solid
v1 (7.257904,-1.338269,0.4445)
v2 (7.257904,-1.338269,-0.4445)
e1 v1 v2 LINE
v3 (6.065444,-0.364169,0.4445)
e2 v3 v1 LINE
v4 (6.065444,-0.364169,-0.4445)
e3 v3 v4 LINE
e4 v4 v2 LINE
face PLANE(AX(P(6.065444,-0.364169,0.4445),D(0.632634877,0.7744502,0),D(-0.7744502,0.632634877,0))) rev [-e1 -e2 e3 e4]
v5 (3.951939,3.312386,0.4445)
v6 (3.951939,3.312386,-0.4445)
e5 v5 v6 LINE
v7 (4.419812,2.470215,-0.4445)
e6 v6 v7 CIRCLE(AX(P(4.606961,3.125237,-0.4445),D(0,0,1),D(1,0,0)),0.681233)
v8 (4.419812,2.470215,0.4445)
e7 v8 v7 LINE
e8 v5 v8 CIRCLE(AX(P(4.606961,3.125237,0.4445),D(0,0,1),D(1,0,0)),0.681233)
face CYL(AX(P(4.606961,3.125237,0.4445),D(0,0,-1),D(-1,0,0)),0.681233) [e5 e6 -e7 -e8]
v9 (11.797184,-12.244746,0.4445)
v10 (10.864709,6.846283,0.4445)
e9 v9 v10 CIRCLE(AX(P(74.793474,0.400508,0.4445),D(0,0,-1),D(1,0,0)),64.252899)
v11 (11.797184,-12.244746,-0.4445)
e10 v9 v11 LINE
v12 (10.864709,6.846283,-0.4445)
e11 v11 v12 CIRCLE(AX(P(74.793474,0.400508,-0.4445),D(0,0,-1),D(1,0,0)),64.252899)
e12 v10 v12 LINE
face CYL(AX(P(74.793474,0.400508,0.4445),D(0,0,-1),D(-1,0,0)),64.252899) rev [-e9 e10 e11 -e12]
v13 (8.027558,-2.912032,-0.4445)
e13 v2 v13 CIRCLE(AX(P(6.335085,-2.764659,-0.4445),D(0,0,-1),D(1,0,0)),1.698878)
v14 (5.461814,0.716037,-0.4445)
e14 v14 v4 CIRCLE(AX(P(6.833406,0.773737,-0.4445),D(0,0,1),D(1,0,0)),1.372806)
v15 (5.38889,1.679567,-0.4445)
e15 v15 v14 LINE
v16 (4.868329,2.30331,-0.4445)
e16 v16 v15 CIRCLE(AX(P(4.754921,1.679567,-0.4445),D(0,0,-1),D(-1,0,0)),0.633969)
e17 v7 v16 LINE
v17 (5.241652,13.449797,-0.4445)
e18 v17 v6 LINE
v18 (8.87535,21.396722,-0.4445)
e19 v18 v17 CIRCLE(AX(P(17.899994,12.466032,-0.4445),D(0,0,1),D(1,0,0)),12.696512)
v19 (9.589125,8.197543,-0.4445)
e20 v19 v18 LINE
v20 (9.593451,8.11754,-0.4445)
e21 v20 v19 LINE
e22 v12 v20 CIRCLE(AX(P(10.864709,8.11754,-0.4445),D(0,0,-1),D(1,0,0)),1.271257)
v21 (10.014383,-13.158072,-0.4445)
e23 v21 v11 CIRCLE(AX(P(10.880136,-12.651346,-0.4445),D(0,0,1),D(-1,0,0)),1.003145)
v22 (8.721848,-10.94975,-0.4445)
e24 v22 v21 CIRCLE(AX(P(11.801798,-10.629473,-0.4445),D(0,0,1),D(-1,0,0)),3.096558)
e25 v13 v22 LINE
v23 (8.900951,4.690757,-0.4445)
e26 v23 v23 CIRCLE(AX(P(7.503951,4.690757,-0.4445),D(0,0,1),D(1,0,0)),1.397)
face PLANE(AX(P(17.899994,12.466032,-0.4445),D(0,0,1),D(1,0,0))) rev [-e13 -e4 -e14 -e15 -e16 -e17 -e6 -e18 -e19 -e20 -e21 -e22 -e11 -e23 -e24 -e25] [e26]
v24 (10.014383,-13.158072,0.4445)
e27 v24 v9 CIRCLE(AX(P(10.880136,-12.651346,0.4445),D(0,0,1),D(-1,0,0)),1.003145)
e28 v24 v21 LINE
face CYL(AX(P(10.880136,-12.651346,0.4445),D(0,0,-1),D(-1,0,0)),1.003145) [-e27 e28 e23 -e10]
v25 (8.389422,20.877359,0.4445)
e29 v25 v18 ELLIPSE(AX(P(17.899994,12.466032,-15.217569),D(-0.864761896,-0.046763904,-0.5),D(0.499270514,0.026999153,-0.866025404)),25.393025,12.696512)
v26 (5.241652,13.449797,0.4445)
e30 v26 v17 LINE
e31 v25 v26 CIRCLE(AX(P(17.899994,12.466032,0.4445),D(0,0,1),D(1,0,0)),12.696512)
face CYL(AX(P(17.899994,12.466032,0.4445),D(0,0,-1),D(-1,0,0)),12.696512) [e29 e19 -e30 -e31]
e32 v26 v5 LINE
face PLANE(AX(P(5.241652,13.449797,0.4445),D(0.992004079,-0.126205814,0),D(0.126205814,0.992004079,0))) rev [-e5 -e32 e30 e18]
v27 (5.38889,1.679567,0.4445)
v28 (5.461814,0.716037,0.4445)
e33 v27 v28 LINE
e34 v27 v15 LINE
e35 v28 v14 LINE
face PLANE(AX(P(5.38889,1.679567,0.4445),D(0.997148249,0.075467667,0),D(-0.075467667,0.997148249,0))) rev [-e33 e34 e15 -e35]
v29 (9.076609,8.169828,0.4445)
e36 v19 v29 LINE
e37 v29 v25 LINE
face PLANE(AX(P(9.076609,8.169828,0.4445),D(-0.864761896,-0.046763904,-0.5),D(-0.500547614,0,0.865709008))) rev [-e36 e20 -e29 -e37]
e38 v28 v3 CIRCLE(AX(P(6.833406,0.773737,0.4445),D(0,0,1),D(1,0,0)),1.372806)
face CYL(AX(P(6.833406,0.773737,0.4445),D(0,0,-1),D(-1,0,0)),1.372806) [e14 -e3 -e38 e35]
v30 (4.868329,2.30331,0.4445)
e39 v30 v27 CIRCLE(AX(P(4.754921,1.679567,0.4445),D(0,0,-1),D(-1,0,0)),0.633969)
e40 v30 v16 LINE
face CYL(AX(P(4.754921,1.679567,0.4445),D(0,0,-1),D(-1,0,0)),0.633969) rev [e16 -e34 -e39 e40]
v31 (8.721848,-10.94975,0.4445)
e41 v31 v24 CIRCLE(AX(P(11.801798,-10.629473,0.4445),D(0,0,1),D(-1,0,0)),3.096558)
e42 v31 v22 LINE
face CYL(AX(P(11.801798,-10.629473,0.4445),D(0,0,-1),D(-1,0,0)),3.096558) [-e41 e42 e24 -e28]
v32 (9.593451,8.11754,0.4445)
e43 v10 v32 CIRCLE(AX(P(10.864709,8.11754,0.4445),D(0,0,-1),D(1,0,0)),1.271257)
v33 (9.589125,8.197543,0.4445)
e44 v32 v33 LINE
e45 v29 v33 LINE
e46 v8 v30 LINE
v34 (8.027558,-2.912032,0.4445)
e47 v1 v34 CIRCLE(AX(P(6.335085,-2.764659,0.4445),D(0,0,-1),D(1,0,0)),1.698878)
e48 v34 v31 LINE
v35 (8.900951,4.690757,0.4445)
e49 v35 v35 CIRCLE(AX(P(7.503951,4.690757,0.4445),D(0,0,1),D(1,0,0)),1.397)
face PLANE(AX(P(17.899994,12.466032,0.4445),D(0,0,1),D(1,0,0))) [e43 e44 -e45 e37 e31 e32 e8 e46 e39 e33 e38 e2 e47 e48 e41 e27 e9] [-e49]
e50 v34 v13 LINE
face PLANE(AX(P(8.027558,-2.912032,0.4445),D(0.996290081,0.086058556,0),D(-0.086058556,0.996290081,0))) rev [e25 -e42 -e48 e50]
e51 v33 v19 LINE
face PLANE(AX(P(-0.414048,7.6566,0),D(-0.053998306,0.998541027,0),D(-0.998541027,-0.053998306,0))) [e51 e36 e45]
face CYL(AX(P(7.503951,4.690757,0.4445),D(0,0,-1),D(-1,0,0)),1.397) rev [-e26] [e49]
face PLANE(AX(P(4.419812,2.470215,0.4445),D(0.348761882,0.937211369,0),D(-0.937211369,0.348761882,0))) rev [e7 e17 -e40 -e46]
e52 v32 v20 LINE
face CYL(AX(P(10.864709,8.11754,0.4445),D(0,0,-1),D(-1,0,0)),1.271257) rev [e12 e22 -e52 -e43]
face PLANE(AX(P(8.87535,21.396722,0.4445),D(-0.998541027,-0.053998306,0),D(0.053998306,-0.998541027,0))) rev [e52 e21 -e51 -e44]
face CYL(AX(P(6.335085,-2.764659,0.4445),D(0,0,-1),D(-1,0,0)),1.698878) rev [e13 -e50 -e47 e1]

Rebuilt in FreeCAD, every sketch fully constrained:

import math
import FreeCAD as App
import Part
import Sketcher
Q = App.Units.Quantity


def add_polygon(sketch, points):
    """Adds a closed chain of lines whose ends are joined by coincident constraints."""
    first, n = sketch.GeometryCount, len(points)
    for a, b in zip(points, points[1:] + points[:1]):
        sketch.addGeometry(Part.LineSegment(App.Vector(*a, 0), App.Vector(*b, 0)), False)
    for i in range(n):
        sketch.addConstraint(Sketcher.Constraint("Coincident", first + i, 2, first + (i + 1) % n, 1))

doc = App.newDocument("Part")
body = doc.addObject("PartDesign::Body", "Body")

# Sketch on XY plane
sketch1 = body.newObject("Sketcher::SketchObject", "Sketch")
sketch1.AttachmentSupport = (doc.getObject("XY_Plane"), [""])
sketch1.MapMode = "FlatFace"
sketch1.addGeometry(Part.LineSegment(App.Vector(9.59, 8.12, 0), App.Vector(8.88, 21.4, 0)), False)
sketch1.addGeometry(Part.ArcOfCircle(Part.Circle(App.Vector(17.9, 12.47, 0), App.Vector(0, 0, 1), 12.7), math.radians(135), math.radians(176)), False)
sketch1.addGeometry(Part.LineSegment(App.Vector(5.24, 13.45, 0), App.Vector(3.95, 3.31, 0)), False)
sketch1.addGeometry(Part.ArcOfCircle(Part.Circle(App.Vector(4.61, 3.13, 0), App.Vector(0, 0, 1), 0.68), math.radians(164), math.radians(254)), False)
sketch1.addGeometry(Part.LineSegment(App.Vector(4.42, 2.47, 0), App.Vector(4.87, 2.3, 0)), False)
sketch1.addGeometry(Part.ArcOfCircle(Part.Circle(App.Vector(4.75, 1.68, 0), App.Vector(0, 0, 1), 0.63), math.radians(0), math.radians(80)), False)
sketch1.addGeometry(Part.LineSegment(App.Vector(5.39, 1.68, 0), App.Vector(5.46, 0.72, 0)), False)
sketch1.addGeometry(Part.ArcOfCircle(Part.Circle(App.Vector(6.83, 0.77, 0), App.Vector(0, 0, 1), 1.37), math.radians(-178), math.radians(-124)), False)
sketch1.addGeometry(Part.LineSegment(App.Vector(6.07, -0.36, 0), App.Vector(7.26, -1.34, 0)), False)
sketch1.addGeometry(Part.ArcOfCircle(Part.Circle(App.Vector(6.34, -2.76, 0), App.Vector(0, 0, 1), 1.7), math.radians(-5), math.radians(57)), False)
sketch1.addGeometry(Part.LineSegment(App.Vector(8.03, -2.91, 0), App.Vector(8.72, -10.95, 0)), False)
sketch1.addGeometry(Part.ArcOfCircle(Part.Circle(App.Vector(11.8, -10.63, 0), App.Vector(0, 0, 1), 3.1), math.radians(-174), math.radians(-125)), False)
sketch1.addGeometry(Part.ArcOfCircle(Part.Circle(App.Vector(10.88, -12.65, 0), App.Vector(0, 0, 1), 1), math.radians(-150), math.radians(24)), False)
sketch1.addGeometry(Part.ArcOfCircle(Part.Circle(App.Vector(74.79, 0.4, 0), App.Vector(0, 0, 1), 64.25), math.radians(174.24), math.radians(191.35)), False)
sketch1.addGeometry(Part.ArcOfCircle(Part.Circle(App.Vector(10.86, 8.12, 0), App.Vector(0, 0, 1), 1.27), math.radians(180), math.radians(270)), False)
sketch1.addGeometry(Part.Circle(App.Vector(7.5, 4.69, 0), App.Vector(0, 0, 1), 1.4), False)
sketch1.addConstraint(Sketcher.Constraint("Coincident", 0, 2, 1, 1))
sketch1.addConstraint(Sketcher.Constraint("Coincident", 1, 2, 2, 1))
sketch1.addConstraint(Sketcher.Constraint("Coincident", 2, 2, 3, 1))
sketch1.addConstraint(Sketcher.Constraint("Coincident", 3, 2, 4, 1))
sketch1.addConstraint(Sketcher.Constraint("Coincident", 4, 2, 5, 2))
sketch1.addConstraint(Sketcher.Constraint("Coincident", 5, 1, 6, 1))
sketch1.addConstraint(Sketcher.Constraint("Coincident", 6, 2, 7, 1))
sketch1.addConstraint(Sketcher.Constraint("Coincident", 7, 2, 8, 1))
sketch1.addConstraint(Sketcher.Constraint("Coincident", 8, 2, 9, 2))
sketch1.addConstraint(Sketcher.Constraint("Coincident", 9, 1, 10, 1))
sketch1.addConstraint(Sketcher.Constraint("Coincident", 10, 2, 11, 1))
sketch1.addConstraint(Sketcher.Constraint("Coincident", 11, 2, 12, 1))
sketch1.addConstraint(Sketcher.Constraint("Coincident", 12, 2, 13, 2))
sketch1.addConstraint(Sketcher.Constraint("Coincident", 13, 1, 14, 2))
sketch1.addConstraint(Sketcher.Constraint("Coincident", 14, 1, 0, 1))
sketch1.addConstraint(Sketcher.Constraint("Vertical", 14, 3, 13, 1))
sketch1.addConstraint(Sketcher.Constraint("Diameter", 15, Q("0.11 in")))
sketch1.addConstraint(Sketcher.Constraint("Radius", 13, Q("64.252899 mm")))
sketch1.addConstraint(Sketcher.Constraint("Radius", 5, Q("0.633969 mm")))
sketch1.addConstraint(Sketcher.Constraint("Radius", 11, Q("3.096558 mm")))
sketch1.addConstraint(Sketcher.Constraint("Radius", 1, Q("12.696512 mm")))
sketch1.addConstraint(Sketcher.Constraint("Radius", 3, Q("0.681233 mm")))
sketch1.addConstraint(Sketcher.Constraint("Radius", 7, Q("1.372806 mm")))
sketch1.addConstraint(Sketcher.Constraint("Radius", 9, Q("1.698878 mm")))
sketch1.addConstraint(Sketcher.Constraint("Radius", 12, Q("1.003145 mm")))
sketch1.addConstraint(Sketcher.Constraint("Radius", 14, Q("1.271257 mm")))
sketch1.addConstraint(Sketcher.Constraint("DistanceX", -1, 1, 11, 3, Q("11.801798 mm")))
sketch1.addConstraint(Sketcher.Constraint("DistanceY", 7, 3, 3, 3, Q("2.3515 mm")))
sketch1.addConstraint(Sketcher.Constraint("DistanceY", 9, 3, 14, 3, Q("10.882199 mm")))
sketch1.addConstraint(Sketcher.Constraint("DistanceX", 15, 3, 0, 2, Q("1.371399 mm")))
sketch1.addConstraint(Sketcher.Constraint("DistanceX", 1, 2, 0, 2, Q("3.633698 mm")))
sketch1.addConstraint(Sketcher.Constraint("DistanceY", 6, 2, 7, 3, Q("0.057699 mm")))
sketch1.addConstraint(Sketcher.Constraint("DistanceX", 3, 2, 6, 2, Q("1.042002 mm")))
sketch1.addConstraint(Sketcher.Constraint("DistanceY", 8, 2, 7, 2, Q("0.9741 mm")))
sketch1.addConstraint(Sketcher.Constraint("DistanceY", 11, 2, 11, 3, Q("2.5286 mm")))
sketch1.addConstraint(Sketcher.Constraint("DistanceX", 9, 3, 11, 2, Q("3.679298 mm")))
sketch1.addConstraint(Sketcher.Constraint("DistanceY", 12, 3, 12, 2, Q("0.406599 mm")))
sketch1.addConstraint(Sketcher.Constraint("DistanceX", 11, 2, 12, 2, Q("1.782801 mm")))
sketch1.addConstraint(Sketcher.Constraint("DistanceX", 15, 3, 14, 1, Q("2.0895 mm")))
sketch1.addConstraint(Sketcher.Constraint("Distance", 8, Q("1.53975 mm")))
sketch1.addConstraint(Sketcher.Constraint("Distance", 10, Q("8.067648 mm")))
sketch1.addConstraint(Sketcher.Constraint("DistanceY", -1, 1, 1, 3, Q("12.466032 mm")))
sketch1.addConstraint(Sketcher.Constraint("DistanceX", -1, 1, 3, 3, Q("4.606961 mm")))
sketch1.addConstraint(Sketcher.Constraint("DistanceX", -1, 1, 5, 3, Q("4.754921 mm")))
sketch1.addConstraint(Sketcher.Constraint("DistanceY", 9, 3, -1, 1, Q("2.764659 mm")))
sketch1.addConstraint(Sketcher.Constraint("DistanceY", -1, 1, 13, 3, Q("0.400508 mm")))
sketch1.addConstraint(Sketcher.Constraint("DistanceX", -1, 1, 14, 3, Q("10.864709 mm")))
sketch1.addConstraint(Sketcher.Constraint("DistanceY", -1, 1, 0, 2, Q("21.396722 mm")))
sketch1.addConstraint(Sketcher.Constraint("DistanceX", -1, 1, 2, 2, Q("3.951939 mm")))
sketch1.addConstraint(Sketcher.Constraint("DistanceX", -1, 1, 4, 2, Q("4.868329 mm")))
sketch1.addConstraint(Sketcher.Constraint("DistanceY", -1, 1, 4, 2, Q("2.30331 mm")))
sketch1.addConstraint(Sketcher.Constraint("DistanceY", 7, 2, -1, 1, Q("0.364169 mm")))
sketch1.addConstraint(Sketcher.Constraint("DistanceX", -1, 1, 9, 1, Q("8.027558 mm")))
sketch1.addConstraint(Sketcher.Constraint("DistanceY", -1, 1, 14, 1, Q("8.11754 mm")))
sketch1.addConstraint(Sketcher.Constraint("DistanceY", 5, 3, 3, 3, Q("1.44567 mm")))
sketch1.addConstraint(Sketcher.Constraint("DistanceY", 3, 3, 15, 3, Q("1.565521 mm")))
sketch1.addConstraint(Sketcher.Constraint("DistanceY", 5, 1, 3, 2, Q("0.790649 mm")))
pad1 = body.newObject("PartDesign::Pad", "Pad")
pad1.Profile = sketch1
pad1.Length = Q("0.035 in")
pad1.Midplane = True

# Sketch on an angled plane
sketch2 = body.newObject("Sketcher::SketchObject", "Sketch001")
sketch2.Placement = App.Placement(App.Vector(-1.30556, 24.142512, 0), App.Rotation(App.Vector(0.998541027, 0.053998306, 0), App.Vector(0, 0, -1), App.Vector(-0.053998306, 0.998541027, 0), "ZXY"))
add_polygon(sketch2, [(10, -0.4), (10, 0.4), (9.5, -0.4)])  # lines 0-2
sketch2.addConstraint(Sketcher.Constraint("Vertical", 0))
sketch2.addConstraint(Sketcher.Constraint("Horizontal", 2))
sketch2.addConstraint(Sketcher.Constraint("Angle", 1, Q("-120 deg")))
sketch2.addConstraint(Sketcher.Constraint("DistanceY", 0, 1, 0, 2, Q("0.035 in")))
sketch2.addConstraint(Sketcher.Constraint("DistanceY", -1, 1, 0, 2, Q("0.0175 in")))
sketch2.addConstraint(Sketcher.Constraint("DistanceX", -1, 1, 0, 2, Q("10.017788 mm")))
pocket1 = body.newObject("PartDesign::Pocket", "Pocket")
pocket1.Profile = sketch2
pocket1.Length = Q("0.65 in")

doc.recompute()
